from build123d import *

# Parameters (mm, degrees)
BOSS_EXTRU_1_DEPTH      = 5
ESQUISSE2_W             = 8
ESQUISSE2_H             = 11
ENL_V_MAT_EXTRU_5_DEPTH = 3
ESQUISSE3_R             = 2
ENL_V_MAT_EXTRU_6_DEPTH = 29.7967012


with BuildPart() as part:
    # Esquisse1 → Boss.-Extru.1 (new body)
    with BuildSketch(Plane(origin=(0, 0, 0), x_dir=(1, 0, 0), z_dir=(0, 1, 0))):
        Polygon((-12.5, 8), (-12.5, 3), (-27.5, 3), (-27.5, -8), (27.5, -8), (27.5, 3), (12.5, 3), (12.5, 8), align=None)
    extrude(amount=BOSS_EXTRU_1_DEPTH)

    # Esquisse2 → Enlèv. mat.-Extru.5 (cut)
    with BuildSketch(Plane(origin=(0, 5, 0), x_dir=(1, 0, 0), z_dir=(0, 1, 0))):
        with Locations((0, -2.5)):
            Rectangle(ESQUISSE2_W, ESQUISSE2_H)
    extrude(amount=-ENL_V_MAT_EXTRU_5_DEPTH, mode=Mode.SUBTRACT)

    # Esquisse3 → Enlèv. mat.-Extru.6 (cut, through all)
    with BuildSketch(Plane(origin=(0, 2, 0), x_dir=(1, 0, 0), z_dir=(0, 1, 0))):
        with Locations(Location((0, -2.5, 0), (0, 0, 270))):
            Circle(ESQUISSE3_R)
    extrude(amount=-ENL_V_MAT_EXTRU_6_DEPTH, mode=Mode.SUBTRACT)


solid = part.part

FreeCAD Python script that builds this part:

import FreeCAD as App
import Part
import Sketcher


def add_polygon(sketch, points):
    """Adds a closed chain of lines whose ends are joined by coincident constraints."""
    first, n = sketch.GeometryCount, len(points)
    for a, b in zip(points, points[1:] + points[:1]):
        sketch.addGeometry(Part.LineSegment(App.Vector(*a, 0), App.Vector(*b, 0)), False)
    for i in range(n):
        sketch.addConstraint(Sketcher.Constraint("Coincident", first + i, 2, first + (i + 1) % n, 1))

doc = App.newDocument("Part")
body = doc.addObject("PartDesign::Body", "Body")

sketch1 = doc.addObject("Sketcher::SketchObject", "Sketch")
body.addObject(sketch1)
sketch1.AttachmentSupport = (doc.XZ_Plane, [""])
sketch1.MapMode = "FlatFace"
add_polygon(sketch1, [(-12.5, -8), (-12.5, -3), (-27.5, -3), (-27.5, 8), (27.5, 8), (27.5, -3), (12.5, -3), (12.5, -8)])
sketch1.addConstraint(Sketcher.Constraint("Vertical", 0))
sketch1.addConstraint(Sketcher.Constraint("Horizontal", 1))
sketch1.addConstraint(Sketcher.Constraint("Vertical", 2))
sketch1.addConstraint(Sketcher.Constraint("Horizontal", 3))
sketch1.addConstraint(Sketcher.Constraint("Vertical", 4))
sketch1.addConstraint(Sketcher.Constraint("Horizontal", 5))
sketch1.addConstraint(Sketcher.Constraint("Vertical", 6))
sketch1.addConstraint(Sketcher.Constraint("Horizontal", 7))
sketch1.addConstraint(Sketcher.Constraint("Symmetric", 1, 2, 4, 2, -2))
sketch1.addConstraint(Sketcher.Constraint("Equal", 1, 5))
sketch1.addConstraint(Sketcher.Constraint("DistanceX", 1, 2, 1, 1, 15.0))
sketch1.addConstraint(Sketcher.Constraint("DistanceX", 3, 1, 3, 2, 55.0))
sketch1.addConstraint(Sketcher.Constraint("DistanceY", 0, 1, 0, 2, 5.0))
sketch1.addConstraint(Sketcher.Constraint("DistanceY", 2, 1, 2, 2, 11.0))
sketch1.addConstraint(Sketcher.Constraint("DistanceY", 0, 2, -1, 1, 3.0))
pad1 = doc.addObject("PartDesign::Pad", "Pad")
body.addObject(pad1)
pad1.Profile = sketch1
pad1.Length = 5
pad1.Reversed = True

sketch2 = doc.addObject("Sketcher::SketchObject", "Sketch001")
body.addObject(sketch2)
sketch2.AttachmentSupport = (doc.XZ_Plane, [""])
sketch2.MapMode = "FlatFace"
sketch2.AttachmentOffset = App.Placement(App.Vector(0, 0, -5), App.Rotation())
add_polygon(sketch2, [(-4, -3), (-4, 8), (4, 8), (4, -3)])
sketch2.addConstraint(Sketcher.Constraint("Vertical", 0))
sketch2.addConstraint(Sketcher.Constraint("Horizontal", 1))
sketch2.addConstraint(Sketcher.Constraint("Vertical", 2))
sketch2.addConstraint(Sketcher.Constraint("Horizontal", 3))
sketch2.addConstraint(Sketcher.Constraint("DistanceX", 1, 1, 1, 2, 8.0))
sketch2.addConstraint(Sketcher.Constraint("DistanceY", 0, 1, 0, 2, 11.0))
sketch2.addConstraint(Sketcher.Constraint("DistanceX", 0, 2, -1, 1, 4.0))
sketch2.addConstraint(Sketcher.Constraint("DistanceY", -1, 1, 0, 2, 8.0))
pocket1 = doc.addObject("PartDesign::Pocket", "Pocket")
body.addObject(pocket1)
pocket1.Profile = sketch2
pocket1.Length = 3
pocket1.Reversed = True

sketch3 = doc.addObject("Sketcher::SketchObject", "Sketch002")
body.addObject(sketch3)
sketch3.AttachmentSupport = (doc.XZ_Plane, [""])
sketch3.MapMode = "FlatFace"
sketch3.AttachmentOffset = App.Placement(App.Vector(0, 0, -2), App.Rotation())
sketch3.addGeometry(Part.Circle(App.Vector(0, 2.5, 0), App.Vector(0, 0, 1), 2), False)
sketch3.addConstraint(Sketcher.Constraint("PointOnObject", 0, 3, -2))
sketch3.addConstraint(Sketcher.Constraint("Diameter", 0, 4.0))
sketch3.addConstraint(Sketcher.Constraint("DistanceY", -1, 1, 0, 3, 2.5))
pocket2 = doc.addObject("PartDesign::Pocket", "Pocket001")
body.addObject(pocket2)
pocket2.Profile = sketch3
pocket2.Type = "ThroughAll"
pocket2.Reversed = True

doc.recompute()
